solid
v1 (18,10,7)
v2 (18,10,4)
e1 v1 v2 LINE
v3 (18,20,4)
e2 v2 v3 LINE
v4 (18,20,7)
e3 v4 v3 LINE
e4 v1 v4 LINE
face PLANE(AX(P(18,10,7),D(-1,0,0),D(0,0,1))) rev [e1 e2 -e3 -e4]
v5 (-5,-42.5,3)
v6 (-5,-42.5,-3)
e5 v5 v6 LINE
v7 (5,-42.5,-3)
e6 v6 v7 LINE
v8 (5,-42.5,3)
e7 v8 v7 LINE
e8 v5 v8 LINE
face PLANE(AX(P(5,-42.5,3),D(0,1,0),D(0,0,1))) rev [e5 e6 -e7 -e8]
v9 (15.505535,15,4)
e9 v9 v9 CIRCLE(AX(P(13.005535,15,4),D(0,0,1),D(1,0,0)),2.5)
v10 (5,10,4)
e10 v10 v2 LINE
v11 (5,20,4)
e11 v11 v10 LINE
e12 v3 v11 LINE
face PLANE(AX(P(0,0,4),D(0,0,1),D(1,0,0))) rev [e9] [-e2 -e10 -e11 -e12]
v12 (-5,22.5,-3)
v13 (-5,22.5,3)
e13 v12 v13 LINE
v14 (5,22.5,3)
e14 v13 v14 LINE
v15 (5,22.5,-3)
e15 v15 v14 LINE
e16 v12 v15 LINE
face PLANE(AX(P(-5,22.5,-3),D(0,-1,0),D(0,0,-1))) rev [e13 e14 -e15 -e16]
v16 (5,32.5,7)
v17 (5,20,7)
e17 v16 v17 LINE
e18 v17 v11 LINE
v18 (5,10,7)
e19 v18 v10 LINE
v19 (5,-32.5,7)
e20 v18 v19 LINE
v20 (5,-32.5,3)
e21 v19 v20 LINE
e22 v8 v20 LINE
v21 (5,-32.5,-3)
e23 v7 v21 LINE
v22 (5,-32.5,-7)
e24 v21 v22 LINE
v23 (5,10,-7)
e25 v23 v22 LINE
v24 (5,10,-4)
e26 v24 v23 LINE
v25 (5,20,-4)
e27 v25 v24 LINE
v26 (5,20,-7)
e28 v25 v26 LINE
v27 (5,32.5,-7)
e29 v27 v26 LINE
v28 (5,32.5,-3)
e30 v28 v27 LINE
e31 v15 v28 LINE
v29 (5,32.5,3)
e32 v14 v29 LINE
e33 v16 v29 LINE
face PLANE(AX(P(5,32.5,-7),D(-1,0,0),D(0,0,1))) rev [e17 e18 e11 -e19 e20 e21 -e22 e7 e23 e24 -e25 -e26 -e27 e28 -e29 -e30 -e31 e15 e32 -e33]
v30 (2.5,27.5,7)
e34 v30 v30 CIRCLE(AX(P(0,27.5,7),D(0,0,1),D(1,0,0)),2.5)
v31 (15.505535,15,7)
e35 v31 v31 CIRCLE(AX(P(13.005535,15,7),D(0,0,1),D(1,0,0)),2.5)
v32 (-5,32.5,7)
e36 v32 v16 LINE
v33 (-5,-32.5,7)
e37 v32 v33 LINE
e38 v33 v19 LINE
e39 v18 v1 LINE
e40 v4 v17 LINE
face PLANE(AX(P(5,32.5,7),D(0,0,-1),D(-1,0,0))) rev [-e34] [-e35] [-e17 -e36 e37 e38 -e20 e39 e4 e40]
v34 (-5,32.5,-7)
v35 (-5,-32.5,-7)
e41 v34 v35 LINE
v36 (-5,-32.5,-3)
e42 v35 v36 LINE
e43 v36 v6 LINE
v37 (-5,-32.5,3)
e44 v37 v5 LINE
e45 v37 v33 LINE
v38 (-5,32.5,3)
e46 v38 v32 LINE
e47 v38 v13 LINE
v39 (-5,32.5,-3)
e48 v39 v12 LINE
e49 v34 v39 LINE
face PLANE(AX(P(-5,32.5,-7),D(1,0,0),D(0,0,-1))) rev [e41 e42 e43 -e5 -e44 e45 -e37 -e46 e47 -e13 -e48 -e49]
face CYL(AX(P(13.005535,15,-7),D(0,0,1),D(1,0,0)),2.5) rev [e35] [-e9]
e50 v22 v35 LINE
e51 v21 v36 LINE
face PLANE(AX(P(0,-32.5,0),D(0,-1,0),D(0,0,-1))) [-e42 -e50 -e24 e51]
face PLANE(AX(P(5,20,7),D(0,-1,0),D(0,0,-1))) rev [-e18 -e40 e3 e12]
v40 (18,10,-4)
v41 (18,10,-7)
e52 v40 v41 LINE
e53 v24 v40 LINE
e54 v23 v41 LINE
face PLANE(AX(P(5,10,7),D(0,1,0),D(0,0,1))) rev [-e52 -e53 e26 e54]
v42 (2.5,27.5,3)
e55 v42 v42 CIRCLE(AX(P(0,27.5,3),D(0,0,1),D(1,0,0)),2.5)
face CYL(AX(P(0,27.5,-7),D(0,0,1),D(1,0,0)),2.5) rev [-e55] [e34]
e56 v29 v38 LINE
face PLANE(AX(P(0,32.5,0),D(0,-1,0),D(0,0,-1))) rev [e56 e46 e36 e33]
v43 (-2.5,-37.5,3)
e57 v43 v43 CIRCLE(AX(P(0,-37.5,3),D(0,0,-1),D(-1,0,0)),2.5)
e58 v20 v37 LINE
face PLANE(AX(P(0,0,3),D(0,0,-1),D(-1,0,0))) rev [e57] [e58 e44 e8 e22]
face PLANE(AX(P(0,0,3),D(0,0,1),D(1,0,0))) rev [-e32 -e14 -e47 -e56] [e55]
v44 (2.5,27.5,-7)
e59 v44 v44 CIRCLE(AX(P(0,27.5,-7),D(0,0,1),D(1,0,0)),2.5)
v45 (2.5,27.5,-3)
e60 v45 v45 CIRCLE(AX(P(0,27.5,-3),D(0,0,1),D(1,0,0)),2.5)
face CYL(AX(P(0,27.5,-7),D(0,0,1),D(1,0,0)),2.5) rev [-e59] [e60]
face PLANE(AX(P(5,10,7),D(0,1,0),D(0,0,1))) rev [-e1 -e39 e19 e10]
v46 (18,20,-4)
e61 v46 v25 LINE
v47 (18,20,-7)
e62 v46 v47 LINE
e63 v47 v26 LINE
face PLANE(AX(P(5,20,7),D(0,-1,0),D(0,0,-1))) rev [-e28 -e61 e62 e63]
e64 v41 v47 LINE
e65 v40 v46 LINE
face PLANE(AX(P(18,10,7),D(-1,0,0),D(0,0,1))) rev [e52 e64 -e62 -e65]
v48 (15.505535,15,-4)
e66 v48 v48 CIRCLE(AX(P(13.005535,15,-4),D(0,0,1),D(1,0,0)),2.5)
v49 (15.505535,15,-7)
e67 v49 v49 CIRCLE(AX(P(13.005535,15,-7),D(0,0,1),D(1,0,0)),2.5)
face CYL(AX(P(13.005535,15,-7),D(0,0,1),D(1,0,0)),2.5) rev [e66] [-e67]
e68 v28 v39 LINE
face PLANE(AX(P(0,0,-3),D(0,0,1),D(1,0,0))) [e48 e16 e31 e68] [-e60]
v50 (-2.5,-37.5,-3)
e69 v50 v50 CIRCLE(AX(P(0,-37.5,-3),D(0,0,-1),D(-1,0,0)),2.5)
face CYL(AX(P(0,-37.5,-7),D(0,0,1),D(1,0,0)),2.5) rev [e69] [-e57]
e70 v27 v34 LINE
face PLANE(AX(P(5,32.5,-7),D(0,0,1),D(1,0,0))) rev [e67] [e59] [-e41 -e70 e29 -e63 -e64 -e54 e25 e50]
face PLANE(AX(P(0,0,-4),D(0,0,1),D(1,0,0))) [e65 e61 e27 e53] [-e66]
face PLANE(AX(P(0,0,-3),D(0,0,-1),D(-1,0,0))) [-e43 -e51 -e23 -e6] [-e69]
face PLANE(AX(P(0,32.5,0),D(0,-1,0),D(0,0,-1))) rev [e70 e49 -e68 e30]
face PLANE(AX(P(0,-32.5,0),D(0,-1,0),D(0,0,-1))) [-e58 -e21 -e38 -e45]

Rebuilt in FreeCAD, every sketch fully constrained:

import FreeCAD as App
import Part
import Sketcher


def add_polygon(sketch, points):
    """Adds a closed chain of lines whose ends are joined by coincident constraints."""
    first, n = sketch.GeometryCount, len(points)
    for a, b in zip(points, points[1:] + points[:1]):
        sketch.addGeometry(Part.LineSegment(App.Vector(*a, 0), App.Vector(*b, 0)), False)
    for i in range(n):
        sketch.addConstraint(Sketcher.Constraint("Coincident", first + i, 2, first + (i + 1) % n, 1))

doc = App.newDocument("Part")
body = doc.addObject("PartDesign::Body", "Body")

# Sketch on XZ plane
sketch1 = doc.addObject("Sketcher::SketchObject", "Sketch")
body.addObject(sketch1)
sketch1.AttachmentSupport = (doc.XZ_Plane, [""])
sketch1.MapMode = "FlatFace"
add_polygon(sketch1, [(-5, -7), (-5, 7), (5, 7), (5, -7)])  # lines 0-3
sketch1.addConstraint([
    Sketcher.Constraint("Vertical", 0),
    Sketcher.Constraint("Horizontal", 1),
    Sketcher.Constraint("Vertical", 2),
    Sketcher.Constraint("Horizontal", 3),
    Sketcher.Constraint("Symmetric", 0, 2, 2, 2, -1, 1),
    Sketcher.Constraint("DistanceX", 1, 1, 1, 2, 10.0),
    Sketcher.Constraint("DistanceY", 0, 1, 0, 2, 14.0),
])
pad1 = doc.addObject("PartDesign::Pad", "Pad")
body.addObject(pad1)
pad1.Profile = sketch1
pad1.Length = 65
pad1.Midplane = True

# Sketch on XY plane
sketch2 = doc.addObject("Sketcher::SketchObject", "Sketch001")
body.addObject(sketch2)
sketch2.AttachmentSupport = (doc.XY_Plane, [""])
sketch2.MapMode = "FlatFace"
add_polygon(sketch2, [(5, 20), (5, 10), (18, 10), (18, 20)])  # lines 0-3
sketch2.addConstraint([
    Sketcher.Constraint("Vertical", 0),
    Sketcher.Constraint("Horizontal", 1),
    Sketcher.Constraint("Vertical", 2),
    Sketcher.Constraint("Horizontal", 3),
    Sketcher.Constraint("DistanceX", 1, 1, 1, 2, 13.0),
    Sketcher.Constraint("DistanceY", 0, 2, 0, 1, 10.0),
    Sketcher.Constraint("DistanceX", -1, 1, 0, 2, 5.0),
    Sketcher.Constraint("DistanceY", -1, 1, 0, 2, 10.0),
])
pad2 = doc.addObject("PartDesign::Pad", "Pad001")
body.addObject(pad2)
pad2.Profile = sketch2
pad2.Length = 14
pad2.Midplane = True

# Sketch on XY plane
sketch3 = doc.addObject("Sketcher::SketchObject", "Sketch002")
body.addObject(sketch3)
sketch3.AttachmentSupport = (doc.XY_Plane, [""])
sketch3.MapMode = "FlatFace"
add_polygon(sketch3, [(5, 20), (5, 10), (18, 10), (18, 20)])  # lines 0-3
sketch3.addConstraint([
    Sketcher.Constraint("Vertical", 0),
    Sketcher.Constraint("Horizontal", 1),
    Sketcher.Constraint("Vertical", 2),
    Sketcher.Constraint("Horizontal", 3),
    Sketcher.Constraint("DistanceX", 1, 1, 1, 2, 13.0),
    Sketcher.Constraint("DistanceY", 0, 2, 0, 1, 10.0),
    Sketcher.Constraint("DistanceX", -1, 1, 0, 2, 5.0),
    Sketcher.Constraint("DistanceY", -1, 1, 0, 2, 10.0),
])
pocket1 = doc.addObject("PartDesign::Pocket", "Pocket")
body.addObject(pocket1)
pocket1.Profile = sketch3
pocket1.Length = 8
pocket1.Midplane = True

# Sketch on XY plane
sketch4 = doc.addObject("Sketcher::SketchObject", "Sketch003")
body.addObject(sketch4)
sketch4.AttachmentSupport = (doc.XY_Plane, [""])
sketch4.MapMode = "FlatFace"
sketch4.addGeometry(Part.Circle(App.Vector(13.005535, 15, 0), App.Vector(0, 0, 1), 2.5), False)
sketch4.addConstraint([
    Sketcher.Constraint("Diameter", 0, 5.0),
    Sketcher.Constraint("DistanceY", -1, 1, 0, 3, 15.0),
    Sketcher.Constraint("DistanceX", -1, 1, 0, 3, 13.005535),
])
pocket2 = doc.addObject("PartDesign::Pocket", "Pocket001")
body.addObject(pocket2)
pocket2.Profile = sketch4
pocket2.Type = "ThroughAll"
pocket2.Midplane = True

# Sketch on XY plane
sketch5 = doc.addObject("Sketcher::SketchObject", "Sketch004")
body.addObject(sketch5)
sketch5.AttachmentSupport = (doc.XY_Plane, [""])
sketch5.MapMode = "FlatFace"
add_polygon(sketch5, [(-5, 32.5), (-5, 22.5), (5, 22.5), (5, 32.5)])  # lines 0-3
sketch5.addConstraint([
    Sketcher.Constraint("Vertical", 0),
    Sketcher.Constraint("Horizontal", 1),
    Sketcher.Constraint("Vertical", 2),
    Sketcher.Constraint("Horizontal", 3),
    Sketcher.Constraint("Equal", 3, 0),
    Sketcher.Constraint("DistanceX", 1, 1, 1, 2, 10.0),
    Sketcher.Constraint("DistanceX", 0, 2, -1, 1, 5.0),
    Sketcher.Constraint("DistanceY", -1, 1, 0, 2, 22.5),
])
pocket3 = doc.addObject("PartDesign::Pocket", "Pocket002")
body.addObject(pocket3)
pocket3.Profile = sketch5
pocket3.Length = 6
pocket3.Midplane = True

# Sketch on XY plane
sketch6 = doc.addObject("Sketcher::SketchObject", "Sketch005")
body.addObject(sketch6)
sketch6.AttachmentSupport = (doc.XY_Plane, [""])
sketch6.MapMode = "FlatFace"
add_polygon(sketch6, [(-5, -32.5), (-5, -42.5), (5, -42.5), (5, -32.5)])  # lines 0-3
sketch6.addConstraint([
    Sketcher.Constraint("Vertical", 0),
    Sketcher.Constraint("Horizontal", 1),
    Sketcher.Constraint("Vertical", 2),
    Sketcher.Constraint("Horizontal", 3),
    Sketcher.Constraint("Equal", 3, 0),
    Sketcher.Constraint("DistanceX", 1, 1, 1, 2, 10.0),
    Sketcher.Constraint("DistanceX", 0, 2, -1, 1, 5.0),
    Sketcher.Constraint("DistanceY", 0, 2, -1, 1, 42.5),
])
pad3 = doc.addObject("PartDesign::Pad", "Pad002")
body.addObject(pad3)
pad3.Profile = sketch6
pad3.Length = 6
pad3.Midplane = True

# Sketch on XY plane
sketch7 = doc.addObject("Sketcher::SketchObject", "Sketch006")
body.addObject(sketch7)
sketch7.AttachmentSupport = (doc.XY_Plane, [""])
sketch7.MapMode = "FlatFace"
sketch7.addGeometry(Part.Circle(App.Vector(0, 27.5, 0), App.Vector(0, 0, 1), 2.5), False)
sketch7.addConstraint([
    Sketcher.Constraint("PointOnObject", 0, 3, -2),
    Sketcher.Constraint("Diameter", 0, 5.0),
    Sketcher.Constraint("DistanceY", -1, 1, 0, 3, 27.5),
])
pocket4 = doc.addObject("PartDesign::Pocket", "Pocket003")
body.addObject(pocket4)
pocket4.Profile = sketch7
pocket4.Type = "ThroughAll"
pocket4.Midplane = True

# Sketch on XY plane
sketch8 = doc.addObject("Sketcher::SketchObject", "Sketch007")
body.addObject(sketch8)
sketch8.AttachmentSupport = (doc.XY_Plane, [""])
sketch8.MapMode = "FlatFace"
sketch8.addGeometry(Part.Circle(App.Vector(0, -37.5, 0), App.Vector(0, 0, 1), 2.5), False)
sketch8.addConstraint([
    Sketcher.Constraint("PointOnObject", 0, 3, -2),
    Sketcher.Constraint("Diameter", 0, 5.0),
    Sketcher.Constraint("DistanceY", 0, 3, -1, 1, 37.5),
])
pocket5 = doc.addObject("PartDesign::Pocket", "Pocket004")
body.addObject(pocket5)
pocket5.Profile = sketch8
pocket5.Type = "ThroughAll"
pocket5.Midplane = True

doc.recompute()
